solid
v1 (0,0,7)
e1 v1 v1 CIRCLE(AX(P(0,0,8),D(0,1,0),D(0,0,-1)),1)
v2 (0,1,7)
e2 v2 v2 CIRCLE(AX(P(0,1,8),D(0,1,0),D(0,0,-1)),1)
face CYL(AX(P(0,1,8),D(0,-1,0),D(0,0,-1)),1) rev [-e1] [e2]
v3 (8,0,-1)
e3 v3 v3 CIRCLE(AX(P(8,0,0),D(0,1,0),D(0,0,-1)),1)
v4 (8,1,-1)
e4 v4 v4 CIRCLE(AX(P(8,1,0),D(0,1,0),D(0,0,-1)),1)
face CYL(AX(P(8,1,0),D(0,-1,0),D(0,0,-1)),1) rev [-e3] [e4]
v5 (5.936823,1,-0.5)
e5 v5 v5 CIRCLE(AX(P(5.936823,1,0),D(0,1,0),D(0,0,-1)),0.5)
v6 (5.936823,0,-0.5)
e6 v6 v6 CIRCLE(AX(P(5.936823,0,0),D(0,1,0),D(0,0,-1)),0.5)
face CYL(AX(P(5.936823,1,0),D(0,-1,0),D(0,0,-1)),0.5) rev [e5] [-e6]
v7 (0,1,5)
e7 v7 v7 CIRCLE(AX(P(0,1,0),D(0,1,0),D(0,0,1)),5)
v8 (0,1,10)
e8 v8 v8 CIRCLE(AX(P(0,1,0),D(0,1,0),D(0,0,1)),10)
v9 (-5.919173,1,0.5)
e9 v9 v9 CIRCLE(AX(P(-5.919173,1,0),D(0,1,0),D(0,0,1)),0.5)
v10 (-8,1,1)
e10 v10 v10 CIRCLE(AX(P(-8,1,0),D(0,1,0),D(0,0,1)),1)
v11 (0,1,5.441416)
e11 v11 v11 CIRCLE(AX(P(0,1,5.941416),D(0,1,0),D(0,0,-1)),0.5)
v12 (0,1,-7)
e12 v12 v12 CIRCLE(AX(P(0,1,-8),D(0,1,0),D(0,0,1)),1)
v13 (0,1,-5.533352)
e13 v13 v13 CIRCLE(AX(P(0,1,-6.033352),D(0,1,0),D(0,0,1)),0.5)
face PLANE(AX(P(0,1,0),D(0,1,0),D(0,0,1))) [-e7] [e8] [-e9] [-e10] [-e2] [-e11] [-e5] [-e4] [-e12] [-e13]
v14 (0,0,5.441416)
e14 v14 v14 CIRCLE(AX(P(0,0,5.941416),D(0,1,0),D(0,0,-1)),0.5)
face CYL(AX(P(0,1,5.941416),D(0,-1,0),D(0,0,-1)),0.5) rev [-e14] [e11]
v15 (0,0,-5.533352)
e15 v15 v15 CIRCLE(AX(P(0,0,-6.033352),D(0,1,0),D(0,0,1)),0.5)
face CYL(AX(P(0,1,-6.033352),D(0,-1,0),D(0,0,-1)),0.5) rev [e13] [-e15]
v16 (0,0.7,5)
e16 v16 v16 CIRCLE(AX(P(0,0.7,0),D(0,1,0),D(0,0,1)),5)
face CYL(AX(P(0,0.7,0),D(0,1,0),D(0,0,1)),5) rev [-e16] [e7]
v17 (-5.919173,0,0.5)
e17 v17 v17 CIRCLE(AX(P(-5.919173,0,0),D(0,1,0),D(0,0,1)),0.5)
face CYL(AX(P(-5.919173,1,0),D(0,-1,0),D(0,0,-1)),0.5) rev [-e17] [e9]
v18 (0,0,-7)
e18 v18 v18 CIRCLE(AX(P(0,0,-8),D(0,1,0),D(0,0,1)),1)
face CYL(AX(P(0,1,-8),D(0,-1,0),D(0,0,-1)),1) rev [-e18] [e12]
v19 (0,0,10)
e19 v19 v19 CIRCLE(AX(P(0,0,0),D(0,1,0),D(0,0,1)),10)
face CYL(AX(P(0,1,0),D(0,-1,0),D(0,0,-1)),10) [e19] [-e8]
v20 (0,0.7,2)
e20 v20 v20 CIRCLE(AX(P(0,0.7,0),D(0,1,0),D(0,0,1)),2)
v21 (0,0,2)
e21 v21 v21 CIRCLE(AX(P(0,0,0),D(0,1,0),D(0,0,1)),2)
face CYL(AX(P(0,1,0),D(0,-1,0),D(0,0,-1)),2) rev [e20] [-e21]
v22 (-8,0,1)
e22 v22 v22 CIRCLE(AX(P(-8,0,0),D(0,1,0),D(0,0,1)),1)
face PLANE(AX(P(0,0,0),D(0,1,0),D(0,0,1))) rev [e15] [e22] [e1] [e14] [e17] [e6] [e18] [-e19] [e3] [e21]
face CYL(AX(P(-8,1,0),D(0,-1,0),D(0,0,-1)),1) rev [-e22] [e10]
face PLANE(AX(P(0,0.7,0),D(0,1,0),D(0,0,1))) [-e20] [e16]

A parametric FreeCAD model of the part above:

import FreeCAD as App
import Part
import Sketcher

V = App.Vector
Q = App.Units.Quantity

doc = App.newDocument("Part")
body = doc.addObject("PartDesign::Body", "Body")

# Sketch on XZ plane
sketch1 = body.newObject("Sketcher::SketchObject", "Sketch")
sketch1.AttachmentSupport = (doc.getObject("XZ_Plane"), [""])
sketch1.MapMode = "FlatFace"
sketch1.addGeometry([
    Part.Circle(V(0, 0, 0), V(0, 0, 1), 10),  # 0
    Part.Circle(V(0, -8, 0), V(0, 0, 1), 1),  # 1
    Part.Circle(V(0, -6, 0), V(0, 0, 1), 0.5),  # 2
    Part.Circle(V(-8, 0, 0), V(0, 0, 1), 1),  # 3
    Part.Circle(V(-5.9, 0, 0), V(0, 0, 1), 0.5),  # 4
    Part.Circle(V(8, 0, 0), V(0, 0, 1), 1),  # 5
    Part.Circle(V(0, 0, 0), V(0, 0, 1), 2),  # 6
    Part.Circle(V(0, 5.9, 0), V(0, 0, 1), 0.5),  # 7
    Part.Circle(V(0, 8, 0), V(0, 0, 1), 1),  # 8
    Part.Circle(V(5.9, 0, 0), V(0, 0, 1), 0.5),  # 9
], False)
sketch1.addConstraint([
    Sketcher.Constraint("Coincident", 0, 3, -1, 1),
    Sketcher.Constraint("Coincident", 6, 3, -1, 1),
    Sketcher.Constraint("Equal", 1, 3),
    Sketcher.Constraint("Equal", 2, 4),
    Sketcher.Constraint("Equal", 3, 5),
    Sketcher.Constraint("Equal", 4, 7),
    Sketcher.Constraint("Equal", 5, 8),
    Sketcher.Constraint("Equal", 7, 9),
    Sketcher.Constraint("Symmetric", 3, 3, 5, 3, -1, 1),
    Sketcher.Constraint("Symmetric", 1, 3, 8, 3, -1, 1),
    Sketcher.Constraint("PointOnObject", 1, 3, -2),
    Sketcher.Constraint("PointOnObject", 2, 3, -2),
    Sketcher.Constraint("PointOnObject", 3, 3, -1),
    Sketcher.Constraint("PointOnObject", 4, 3, -1),
    Sketcher.Constraint("PointOnObject", 7, 3, -2),
    Sketcher.Constraint("PointOnObject", 9, 3, -1),
    Sketcher.Constraint("Diameter", 0, Q("20 mm")),
    Sketcher.Constraint("Diameter", 1, Q("2 mm")),
    Sketcher.Constraint("Diameter", 2, Q("1 mm")),
    Sketcher.Constraint("Diameter", 6, Q("4 mm")),
    Sketcher.Constraint("DistanceY", 1, 3, -1, 1, Q("8 mm")),
    Sketcher.Constraint("DistanceX", 3, 3, -1, 1, Q("8 mm")),
    Sketcher.Constraint("DistanceY", 2, 3, -1, 1, Q("6.033352 mm")),
    Sketcher.Constraint("DistanceX", 4, 3, -1, 1, Q("5.919173 mm")),
    Sketcher.Constraint("DistanceY", -1, 1, 7, 3, Q("5.941416 mm")),
    Sketcher.Constraint("DistanceX", -1, 1, 9, 3, Q("5.936823 mm")),
])
pad1 = body.newObject("PartDesign::Pad", "Pad")
pad1.Profile = sketch1
pad1.Length = 1
pad1.Reversed = True

# Sketch on XZ plane
sketch2 = body.newObject("Sketcher::SketchObject", "Sketch001")
sketch2.AttachmentSupport = (doc.getObject("XZ_Plane"), [""])
sketch2.MapMode = "FlatFace"
sketch2.AttachmentOffset = App.Placement(V(0, 0, -1), App.Rotation())
sketch2.addGeometry(Part.Circle(V(0, 0, 0), V(0, 0, 1), 5), False)
sketch2.addConstraint([
    Sketcher.Constraint("Coincident", 0, 3, -1, 1),
    Sketcher.Constraint("Diameter", 0, Q("10 mm")),
])
pocket1 = body.newObject("PartDesign::Pocket", "Pocket")
pocket1.Profile = sketch2
pocket1.Length = 0.3
pocket1.Reversed = True

doc.recompute()
